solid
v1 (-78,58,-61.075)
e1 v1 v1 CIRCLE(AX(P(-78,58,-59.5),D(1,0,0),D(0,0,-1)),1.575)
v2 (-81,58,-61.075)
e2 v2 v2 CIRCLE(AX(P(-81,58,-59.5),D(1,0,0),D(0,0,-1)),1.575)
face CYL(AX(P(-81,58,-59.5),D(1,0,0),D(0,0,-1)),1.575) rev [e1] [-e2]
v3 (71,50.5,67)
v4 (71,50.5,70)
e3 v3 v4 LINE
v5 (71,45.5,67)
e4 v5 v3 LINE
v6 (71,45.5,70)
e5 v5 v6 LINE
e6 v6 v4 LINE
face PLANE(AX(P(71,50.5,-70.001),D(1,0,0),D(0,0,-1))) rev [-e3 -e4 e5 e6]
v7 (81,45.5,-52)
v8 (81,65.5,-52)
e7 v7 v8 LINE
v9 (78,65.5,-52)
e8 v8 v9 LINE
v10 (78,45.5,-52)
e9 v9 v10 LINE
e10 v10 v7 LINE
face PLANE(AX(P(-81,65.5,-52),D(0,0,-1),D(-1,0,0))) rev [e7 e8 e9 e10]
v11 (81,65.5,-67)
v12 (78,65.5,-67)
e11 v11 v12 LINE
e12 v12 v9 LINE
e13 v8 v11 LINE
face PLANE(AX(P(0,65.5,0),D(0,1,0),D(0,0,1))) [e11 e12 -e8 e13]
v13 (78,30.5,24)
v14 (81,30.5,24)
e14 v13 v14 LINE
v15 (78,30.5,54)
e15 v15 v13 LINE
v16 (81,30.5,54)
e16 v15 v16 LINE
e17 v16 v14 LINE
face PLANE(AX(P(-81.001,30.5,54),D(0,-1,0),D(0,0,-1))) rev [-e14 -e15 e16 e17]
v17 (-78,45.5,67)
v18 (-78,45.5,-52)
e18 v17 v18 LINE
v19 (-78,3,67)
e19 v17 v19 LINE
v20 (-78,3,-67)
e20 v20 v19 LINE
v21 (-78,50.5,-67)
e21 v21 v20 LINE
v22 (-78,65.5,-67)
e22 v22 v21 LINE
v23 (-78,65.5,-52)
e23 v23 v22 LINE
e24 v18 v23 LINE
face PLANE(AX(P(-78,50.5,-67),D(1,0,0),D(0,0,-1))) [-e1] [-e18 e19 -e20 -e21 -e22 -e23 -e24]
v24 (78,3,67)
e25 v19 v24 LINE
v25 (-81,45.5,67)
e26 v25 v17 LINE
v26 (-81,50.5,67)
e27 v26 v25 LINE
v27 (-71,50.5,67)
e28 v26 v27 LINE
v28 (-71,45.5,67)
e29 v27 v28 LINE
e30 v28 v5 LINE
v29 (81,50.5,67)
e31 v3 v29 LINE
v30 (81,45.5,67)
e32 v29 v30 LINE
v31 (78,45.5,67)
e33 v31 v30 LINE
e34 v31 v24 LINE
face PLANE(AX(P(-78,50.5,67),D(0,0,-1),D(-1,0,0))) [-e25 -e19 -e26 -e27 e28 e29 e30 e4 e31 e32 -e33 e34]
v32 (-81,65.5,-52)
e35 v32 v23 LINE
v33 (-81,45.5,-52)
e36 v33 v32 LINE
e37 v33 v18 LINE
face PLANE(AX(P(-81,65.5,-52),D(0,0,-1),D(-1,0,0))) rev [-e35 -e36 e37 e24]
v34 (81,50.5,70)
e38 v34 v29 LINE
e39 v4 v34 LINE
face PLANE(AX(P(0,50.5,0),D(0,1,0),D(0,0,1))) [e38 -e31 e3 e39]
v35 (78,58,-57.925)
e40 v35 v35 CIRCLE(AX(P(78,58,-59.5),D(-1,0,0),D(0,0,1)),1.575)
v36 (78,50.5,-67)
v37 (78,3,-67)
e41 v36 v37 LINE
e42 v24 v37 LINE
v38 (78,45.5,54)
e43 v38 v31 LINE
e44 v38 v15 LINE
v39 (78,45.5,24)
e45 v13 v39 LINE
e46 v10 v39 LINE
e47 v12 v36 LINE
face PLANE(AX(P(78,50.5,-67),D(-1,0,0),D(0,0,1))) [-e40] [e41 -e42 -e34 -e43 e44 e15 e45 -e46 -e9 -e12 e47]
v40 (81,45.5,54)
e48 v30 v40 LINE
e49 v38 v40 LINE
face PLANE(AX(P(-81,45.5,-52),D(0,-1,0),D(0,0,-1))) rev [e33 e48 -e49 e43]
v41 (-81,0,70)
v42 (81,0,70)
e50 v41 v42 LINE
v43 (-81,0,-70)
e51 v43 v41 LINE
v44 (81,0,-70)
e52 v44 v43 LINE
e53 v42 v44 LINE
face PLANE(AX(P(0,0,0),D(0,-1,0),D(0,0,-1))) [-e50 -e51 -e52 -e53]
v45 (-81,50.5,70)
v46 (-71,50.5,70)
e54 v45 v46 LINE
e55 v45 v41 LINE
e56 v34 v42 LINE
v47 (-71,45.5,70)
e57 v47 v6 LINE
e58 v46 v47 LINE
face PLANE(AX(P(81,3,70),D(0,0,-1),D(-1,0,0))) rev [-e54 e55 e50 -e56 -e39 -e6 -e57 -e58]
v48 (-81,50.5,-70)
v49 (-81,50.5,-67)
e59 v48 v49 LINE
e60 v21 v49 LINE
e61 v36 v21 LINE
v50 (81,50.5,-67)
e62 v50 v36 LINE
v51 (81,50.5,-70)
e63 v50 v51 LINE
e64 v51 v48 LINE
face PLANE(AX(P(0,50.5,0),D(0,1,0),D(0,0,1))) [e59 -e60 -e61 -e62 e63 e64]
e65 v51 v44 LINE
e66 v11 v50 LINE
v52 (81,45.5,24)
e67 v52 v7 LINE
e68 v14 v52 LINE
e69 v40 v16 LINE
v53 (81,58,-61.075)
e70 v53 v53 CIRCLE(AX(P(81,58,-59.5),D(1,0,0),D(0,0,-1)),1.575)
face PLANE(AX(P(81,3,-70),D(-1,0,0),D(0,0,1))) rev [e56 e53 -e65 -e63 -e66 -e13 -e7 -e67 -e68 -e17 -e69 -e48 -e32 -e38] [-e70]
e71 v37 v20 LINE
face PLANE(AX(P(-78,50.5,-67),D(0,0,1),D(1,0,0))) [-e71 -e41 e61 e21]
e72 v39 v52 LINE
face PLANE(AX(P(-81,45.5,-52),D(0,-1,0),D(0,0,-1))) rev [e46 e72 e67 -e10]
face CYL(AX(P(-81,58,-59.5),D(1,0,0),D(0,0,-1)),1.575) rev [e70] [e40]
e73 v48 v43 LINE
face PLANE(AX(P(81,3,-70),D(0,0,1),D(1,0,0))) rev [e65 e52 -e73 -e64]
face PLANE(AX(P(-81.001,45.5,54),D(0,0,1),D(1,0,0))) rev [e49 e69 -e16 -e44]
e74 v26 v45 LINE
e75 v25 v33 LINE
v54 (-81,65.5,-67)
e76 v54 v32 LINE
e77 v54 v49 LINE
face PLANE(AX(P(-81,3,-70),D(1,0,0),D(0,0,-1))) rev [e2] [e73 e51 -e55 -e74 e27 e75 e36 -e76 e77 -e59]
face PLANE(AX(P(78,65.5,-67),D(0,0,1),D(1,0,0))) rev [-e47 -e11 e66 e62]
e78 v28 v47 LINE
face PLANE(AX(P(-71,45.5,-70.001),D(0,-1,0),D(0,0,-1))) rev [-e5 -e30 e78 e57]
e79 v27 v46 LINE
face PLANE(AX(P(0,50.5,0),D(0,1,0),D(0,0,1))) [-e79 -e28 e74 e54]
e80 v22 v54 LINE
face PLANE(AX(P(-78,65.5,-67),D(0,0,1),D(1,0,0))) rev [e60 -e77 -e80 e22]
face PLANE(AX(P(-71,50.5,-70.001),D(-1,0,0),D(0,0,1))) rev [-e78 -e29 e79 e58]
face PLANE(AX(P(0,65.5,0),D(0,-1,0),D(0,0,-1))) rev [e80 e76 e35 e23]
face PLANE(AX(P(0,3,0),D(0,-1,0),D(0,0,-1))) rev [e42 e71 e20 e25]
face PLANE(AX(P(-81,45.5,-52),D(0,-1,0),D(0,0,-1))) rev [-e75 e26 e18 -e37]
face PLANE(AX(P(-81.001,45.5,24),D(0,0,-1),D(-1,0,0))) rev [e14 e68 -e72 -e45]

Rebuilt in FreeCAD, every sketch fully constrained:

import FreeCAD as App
import Part
import Sketcher


def add_polygon(sketch, points):
    """Adds a closed chain of lines whose ends are joined by coincident constraints."""
    first, n = sketch.GeometryCount, len(points)
    for a, b in zip(points, points[1:] + points[:1]):
        sketch.addGeometry(Part.LineSegment(App.Vector(*a, 0), App.Vector(*b, 0)), False)
    for i in range(n):
        sketch.addConstraint(Sketcher.Constraint("Coincident", first + i, 2, first + (i + 1) % n, 1))

doc = App.newDocument("Part")
params = doc.addObject("Spreadsheet::Sheet", "Params")
for row, (alias, value) in enumerate([
    ("sketch1_width", "162 mm"),
    ("sketch1_height", "140 mm"),
    ("pad1_length", "3 mm"),
    ("sketch2_width", "162 mm"),
    ("sketch2_width2", "156 mm"),
    ("sketch2_height", "140 mm"),
    ("sketch2_height2", "134 mm"),
    ("pad2_length", "47.5 mm"),
    ("sketch3_width", "3 mm"),
    ("sketch3_height", "134 mm"),
    ("pad3_length", "15 mm"),
    ("sketch4_diameter", "3.15 mm"),
    ("sketch4_width", "20 mm"),
    ("sketch4_height", "119 mm"),
    ("sketch5_width", "142 mm"),
    ("sketch5_height", "5 mm"),
    ("sketch6_width", "15 mm"),
    ("sketch6_height", "30 mm"),
], start=1):
    params.set(f"A{row}", alias)
    params.set(f"B{row}", "=" + value)
    params.setAlias(f"B{row}", alias)

body = doc.addObject("PartDesign::Body", "Body")

# Sketch on XZ plane
sketch1 = body.newObject("Sketcher::SketchObject", "Sketch")
sketch1.AttachmentSupport = (doc.getObject("XZ_Plane"), [""])
sketch1.MapMode = "FlatFace"
add_polygon(sketch1, [(-81, -70), (-81, 70), (81, 70), (81, -70)])  # lines 0-3
sketch1.addConstraint(Sketcher.Constraint("Vertical", 0))
sketch1.addConstraint(Sketcher.Constraint("Horizontal", 1))
sketch1.addConstraint(Sketcher.Constraint("Vertical", 2))
sketch1.addConstraint(Sketcher.Constraint("Horizontal", 3))
sketch1.addConstraint(Sketcher.Constraint("Symmetric", 0, 2, 2, 2, -1, 1))
sketch1.addConstraint(Sketcher.Constraint("DistanceX", 1, 1, 1, 2, 162.0))
sketch1.addConstraint(Sketcher.Constraint("DistanceY", 0, 1, 0, 2, 140.0))
sketch1.setExpression("Constraints[9]", "Params.sketch1_width")
sketch1.setExpression("Constraints[10]", "Params.sketch1_height")
pad1 = body.newObject("PartDesign::Pad", "Pad")
pad1.Profile = sketch1
pad1.setExpression("Length", "Params.pad1_length")
pad1.Reversed = True

# Sketch on XZ plane
sketch2 = body.newObject("Sketcher::SketchObject", "Sketch001")
sketch2.AttachmentSupport = (doc.getObject("XZ_Plane"), [""])
sketch2.MapMode = "FlatFace"
sketch2.AttachmentOffset = App.Placement(App.Vector(0, 0, -3), App.Rotation())
add_polygon(sketch2, [(-81, -70), (-81, 70), (81, 70), (81, -70)])  # lines 0-3
add_polygon(sketch2, [(78, 67), (-78, 67), (-78, -67), (78, -67)])  # lines 4-7
sketch2.addConstraint(Sketcher.Constraint("Vertical", 0))
sketch2.addConstraint(Sketcher.Constraint("Horizontal", 1))
sketch2.addConstraint(Sketcher.Constraint("Vertical", 2))
sketch2.addConstraint(Sketcher.Constraint("Horizontal", 3))
sketch2.addConstraint(Sketcher.Constraint("Horizontal", 4))
sketch2.addConstraint(Sketcher.Constraint("Vertical", 5))
sketch2.addConstraint(Sketcher.Constraint("Horizontal", 6))
sketch2.addConstraint(Sketcher.Constraint("Vertical", 7))
sketch2.addConstraint(Sketcher.Constraint("Symmetric", 0, 2, 2, 2, -1, 1))
sketch2.addConstraint(Sketcher.Constraint("Symmetric", 4, 2, 6, 2, -1, 1))
sketch2.addConstraint(Sketcher.Constraint("DistanceX", 1, 1, 1, 2, 162.0))
sketch2.addConstraint(Sketcher.Constraint("DistanceX", 4, 2, 4, 1, 156.0))
sketch2.addConstraint(Sketcher.Constraint("DistanceY", 0, 1, 0, 2, 140.0))
sketch2.addConstraint(Sketcher.Constraint("DistanceY", 5, 2, 5, 1, 134.0))
sketch2.setExpression("Constraints[18]", "Params.sketch2_width")
sketch2.setExpression("Constraints[19]", "Params.sketch2_width2")
sketch2.setExpression("Constraints[20]", "Params.sketch2_height")
sketch2.setExpression("Constraints[21]", "Params.sketch2_height2")
pad2 = body.newObject("PartDesign::Pad", "Pad001")
pad2.Profile = sketch2
pad2.setExpression("Length", "Params.pad2_length")
pad2.Reversed = True

# Sketch on XZ plane
sketch3 = body.newObject("Sketcher::SketchObject", "Sketch002")
sketch3.AttachmentSupport = (doc.getObject("XZ_Plane"), [""])
sketch3.MapMode = "FlatFace"
sketch3.AttachmentOffset = App.Placement(App.Vector(0, 0, -50.5), App.Rotation())
add_polygon(sketch3, [(-81, -67), (-81, 67), (-78, 67), (-78, -67)])  # lines 0-3
add_polygon(sketch3, [(78, -67), (78, 67), (81, 67), (81, -67)])  # lines 4-7
sketch3.addConstraint(Sketcher.Constraint("Vertical", 0))
sketch3.addConstraint(Sketcher.Constraint("Horizontal", 1))
sketch3.addConstraint(Sketcher.Constraint("Vertical", 2))
sketch3.addConstraint(Sketcher.Constraint("Horizontal", 3))
sketch3.addConstraint(Sketcher.Constraint("Vertical", 4))
sketch3.addConstraint(Sketcher.Constraint("Horizontal", 5))
sketch3.addConstraint(Sketcher.Constraint("Vertical", 6))
sketch3.addConstraint(Sketcher.Constraint("Horizontal", 7))
sketch3.addConstraint(Sketcher.Constraint("Symmetric", 2, 2, 4, 2, -1, 1))
sketch3.addConstraint(Sketcher.Constraint("Symmetric", 0, 2, 6, 2, -1, 1))
sketch3.addConstraint(Sketcher.Constraint("Horizontal", 1, 2, 4, 2))
sketch3.addConstraint(Sketcher.Constraint("DistanceX", 1, 1, 1, 2, 3.0))
sketch3.addConstraint(Sketcher.Constraint("DistanceY", 0, 1, 0, 2, 134.0))
sketch3.addConstraint(Sketcher.Constraint("DistanceX", 0, 2, -1, 1, 81.0))
sketch3.setExpression("Constraints[19]", "Params.sketch3_width")
sketch3.setExpression("Constraints[20]", "Params.sketch3_height")
pad3 = body.newObject("PartDesign::Pad", "Pad002")
pad3.Profile = sketch3
pad3.setExpression("Length", "Params.pad3_length")
pad3.Reversed = True

# Sketch on YZ plane
sketch4 = body.newObject("Sketcher::SketchObject", "Sketch003")
sketch4.AttachmentSupport = (doc.getObject("YZ_Plane"), [""])
sketch4.MapMode = "FlatFace"
sketch4.AttachmentOffset = App.Placement(App.Vector(0, 0, 81), App.Rotation())
sketch4.addGeometry(Part.Circle(App.Vector(58, -59.5, 0), App.Vector(0, 0, 1), 1.6), False)  # 0
add_polygon(sketch4, [(65.5, 67), (45.5, 67), (45.5, -52), (65.5, -52)])  # lines 1-4
sketch4.addConstraint(Sketcher.Constraint("Horizontal", 1))
sketch4.addConstraint(Sketcher.Constraint("Vertical", 2))
sketch4.addConstraint(Sketcher.Constraint("Horizontal", 3))
sketch4.addConstraint(Sketcher.Constraint("Vertical", 4))
sketch4.addConstraint(Sketcher.Constraint("Diameter", 0, 3.15))
sketch4.addConstraint(Sketcher.Constraint("DistanceX", 1, 2, 1, 1, 20.0))
sketch4.addConstraint(Sketcher.Constraint("DistanceY", 2, 2, 2, 1, 119.0))
sketch4.addConstraint(Sketcher.Constraint("DistanceX", -1, 1, 0, 3, 58.0))
sketch4.addConstraint(Sketcher.Constraint("DistanceY", -1, 1, 1, 2, 67.0))
sketch4.addConstraint(Sketcher.Constraint("DistanceY", 0, 3, -1, 1, 59.5))
sketch4.addConstraint(Sketcher.Constraint("DistanceX", -1, 1, 1, 2, 45.5))
sketch4.setExpression("Constraints[8]", "Params.sketch4_diameter")
sketch4.setExpression("Constraints[9]", "Params.sketch4_width")
sketch4.setExpression("Constraints[10]", "Params.sketch4_height")
pocket1 = body.newObject("PartDesign::Pocket", "Pocket")
pocket1.Profile = sketch4
pocket1.Type = "ThroughAll"

# Sketch on XY plane
sketch5 = body.newObject("Sketcher::SketchObject", "Sketch004")
sketch5.AttachmentSupport = (doc.getObject("XY_Plane"), [""])
sketch5.MapMode = "FlatFace"
sketch5.AttachmentOffset = App.Placement(App.Vector(0, 0, 70), App.Rotation())
add_polygon(sketch5, [(-71, 50), (-71, 46), (71, 46), (71, 50)])  # lines 0-3
sketch5.addConstraint(Sketcher.Constraint("Vertical", 0))
sketch5.addConstraint(Sketcher.Constraint("Horizontal", 1))
sketch5.addConstraint(Sketcher.Constraint("Vertical", 2))
sketch5.addConstraint(Sketcher.Constraint("Horizontal", 3))
sketch5.addConstraint(Sketcher.Constraint("DistanceX", 1, 1, 1, 2, 142.0))
sketch5.addConstraint(Sketcher.Constraint("DistanceY", 0, 2, 0, 1, 5.0))
sketch5.addConstraint(Sketcher.Constraint("DistanceX", 0, 2, -1, 1, 71.0))
sketch5.addConstraint(Sketcher.Constraint("DistanceY", -1, 1, 0, 2, 45.5))
sketch5.setExpression("Constraints[8]", "Params.sketch5_width")
sketch5.setExpression("Constraints[9]", "Params.sketch5_height")
pocket2 = body.newObject("PartDesign::Pocket", "Pocket001")
pocket2.Profile = sketch5
pocket2.Type = "UpToFirst"

# Sketch on YZ plane
sketch6 = body.newObject("Sketcher::SketchObject", "Sketch005")
sketch6.AttachmentSupport = (doc.getObject("YZ_Plane"), [""])
sketch6.MapMode = "FlatFace"
sketch6.AttachmentOffset = App.Placement(App.Vector(0, 0, 81), App.Rotation())
add_polygon(sketch6, [(46, 54), (30, 54), (30, 24), (46, 24)])  # lines 0-3
sketch6.addConstraint(Sketcher.Constraint("Horizontal", 0))
sketch6.addConstraint(Sketcher.Constraint("Vertical", 1))
sketch6.addConstraint(Sketcher.Constraint("Horizontal", 2))
sketch6.addConstraint(Sketcher.Constraint("Vertical", 3))
sketch6.addConstraint(Sketcher.Constraint("DistanceX", 0, 2, 0, 1, 15.0))
sketch6.addConstraint(Sketcher.Constraint("DistanceY", 1, 2, 1, 1, 30.0))
sketch6.addConstraint(Sketcher.Constraint("DistanceY", -1, 1, 0, 2, 54.0))
sketch6.addConstraint(Sketcher.Constraint("DistanceX", -1, 1, 0, 2, 30.5))
sketch6.setExpression("Constraints[8]", "Params.sketch6_width")
sketch6.setExpression("Constraints[9]", "Params.sketch6_height")
pocket3 = body.newObject("PartDesign::Pocket", "Pocket002")
pocket3.Profile = sketch6
pocket3.Type = "UpToFirst"

doc.recompute()
